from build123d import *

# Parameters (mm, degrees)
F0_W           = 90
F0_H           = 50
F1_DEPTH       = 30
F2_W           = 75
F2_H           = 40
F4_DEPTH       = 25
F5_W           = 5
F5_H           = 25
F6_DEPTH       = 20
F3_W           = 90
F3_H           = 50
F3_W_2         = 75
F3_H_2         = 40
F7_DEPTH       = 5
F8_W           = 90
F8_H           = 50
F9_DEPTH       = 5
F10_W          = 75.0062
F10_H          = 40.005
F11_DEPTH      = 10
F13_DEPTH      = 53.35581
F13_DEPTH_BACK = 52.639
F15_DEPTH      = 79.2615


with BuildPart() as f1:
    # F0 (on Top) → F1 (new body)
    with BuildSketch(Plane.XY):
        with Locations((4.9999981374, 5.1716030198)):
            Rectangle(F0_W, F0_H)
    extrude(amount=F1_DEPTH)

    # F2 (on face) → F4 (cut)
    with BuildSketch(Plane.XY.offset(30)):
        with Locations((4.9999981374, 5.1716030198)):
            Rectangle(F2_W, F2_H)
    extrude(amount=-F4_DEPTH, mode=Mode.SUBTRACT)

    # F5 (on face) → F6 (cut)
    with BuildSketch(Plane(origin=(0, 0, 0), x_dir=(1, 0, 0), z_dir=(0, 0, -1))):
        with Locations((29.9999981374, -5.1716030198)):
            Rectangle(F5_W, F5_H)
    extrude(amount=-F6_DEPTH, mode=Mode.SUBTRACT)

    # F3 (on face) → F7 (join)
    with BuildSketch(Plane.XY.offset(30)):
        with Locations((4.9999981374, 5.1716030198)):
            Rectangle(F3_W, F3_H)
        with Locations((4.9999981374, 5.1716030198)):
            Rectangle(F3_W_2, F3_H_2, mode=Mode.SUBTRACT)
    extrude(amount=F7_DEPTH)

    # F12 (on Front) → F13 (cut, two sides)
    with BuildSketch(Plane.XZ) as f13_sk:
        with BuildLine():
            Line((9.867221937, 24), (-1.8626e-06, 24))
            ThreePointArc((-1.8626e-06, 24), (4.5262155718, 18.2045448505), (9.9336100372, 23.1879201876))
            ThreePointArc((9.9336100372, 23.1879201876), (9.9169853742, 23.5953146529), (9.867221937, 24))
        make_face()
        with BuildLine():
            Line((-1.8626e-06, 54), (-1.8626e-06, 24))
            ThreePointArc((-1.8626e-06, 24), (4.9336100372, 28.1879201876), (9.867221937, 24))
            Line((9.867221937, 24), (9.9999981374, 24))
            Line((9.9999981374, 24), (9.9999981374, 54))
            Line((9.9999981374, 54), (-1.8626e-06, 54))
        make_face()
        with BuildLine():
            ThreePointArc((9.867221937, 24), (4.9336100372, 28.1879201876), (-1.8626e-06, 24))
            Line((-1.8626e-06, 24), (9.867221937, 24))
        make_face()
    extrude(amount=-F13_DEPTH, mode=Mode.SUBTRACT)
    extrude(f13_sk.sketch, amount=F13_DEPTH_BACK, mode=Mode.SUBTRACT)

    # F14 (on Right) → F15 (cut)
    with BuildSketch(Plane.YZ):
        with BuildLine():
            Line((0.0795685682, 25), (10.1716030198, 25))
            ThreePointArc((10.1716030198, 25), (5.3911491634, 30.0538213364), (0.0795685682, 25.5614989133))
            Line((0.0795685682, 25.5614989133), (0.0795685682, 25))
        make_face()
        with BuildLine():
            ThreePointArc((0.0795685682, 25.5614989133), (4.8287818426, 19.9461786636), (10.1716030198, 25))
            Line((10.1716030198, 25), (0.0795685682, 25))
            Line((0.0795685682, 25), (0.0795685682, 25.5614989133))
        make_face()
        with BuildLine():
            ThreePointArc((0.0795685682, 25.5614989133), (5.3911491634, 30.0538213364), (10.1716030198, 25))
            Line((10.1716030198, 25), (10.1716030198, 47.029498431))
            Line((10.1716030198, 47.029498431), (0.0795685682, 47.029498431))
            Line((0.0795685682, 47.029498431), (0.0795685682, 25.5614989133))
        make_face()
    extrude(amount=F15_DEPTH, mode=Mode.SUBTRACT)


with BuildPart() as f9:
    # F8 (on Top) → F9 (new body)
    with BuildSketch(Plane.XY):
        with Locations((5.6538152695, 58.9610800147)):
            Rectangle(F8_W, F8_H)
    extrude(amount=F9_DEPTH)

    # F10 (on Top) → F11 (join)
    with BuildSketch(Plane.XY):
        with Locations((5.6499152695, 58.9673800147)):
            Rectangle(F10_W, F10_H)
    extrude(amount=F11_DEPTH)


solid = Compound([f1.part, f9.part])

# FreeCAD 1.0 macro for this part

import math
import FreeCAD as App
import Part
import Sketcher
from FreeCAD import Vector
Q = App.Units.Quantity

doc = App.newDocument("Part")
body = doc.addObject("PartDesign::Body", "Body")

# Sketch on XY plane
sketch1 = body.newObject("Sketcher::SketchObject", "Sketch")
sketch1.AttachmentSupport = (doc.getObject("XY_Plane"), [""])
sketch1.MapMode = "FlatFace"
sketch1.addGeometry(Part.LineSegment(Vector(-40.000002, 30.171603, 0), Vector(-40.000002, -19.828397, 0)), False)
sketch1.addGeometry(Part.LineSegment(Vector(-40.000002, -19.828397, 0), Vector(49.999998, -19.828397, 0)), False)
sketch1.addGeometry(Part.LineSegment(Vector(49.999998, -19.828397, 0), Vector(49.999998, 30.171603, 0)), False)
sketch1.addGeometry(Part.LineSegment(Vector(49.999998, 30.171603, 0), Vector(-40.000002, 30.171603, 0)), False)
sketch1.addConstraint(Sketcher.Constraint("Coincident", 0, 2, 1, 1))
sketch1.addConstraint(Sketcher.Constraint("Coincident", 1, 2, 2, 1))
sketch1.addConstraint(Sketcher.Constraint("Coincident", 2, 2, 3, 1))
sketch1.addConstraint(Sketcher.Constraint("Coincident", 3, 2, 0, 1))
sketch1.addConstraint(Sketcher.Constraint("Vertical", 0))
sketch1.addConstraint(Sketcher.Constraint("Horizontal", 1))
sketch1.addConstraint(Sketcher.Constraint("Vertical", 2))
sketch1.addConstraint(Sketcher.Constraint("Horizontal", 3))
sketch1.addConstraint(Sketcher.Constraint("DistanceX", 1, 1, 1, 2, Q("90 mm")))
sketch1.addConstraint(Sketcher.Constraint("DistanceY", 0, 2, 0, 1, Q("50 mm")))
sketch1.addConstraint(Sketcher.Constraint("DistanceX", 0, 2, -1, 1, Q("40.000002 mm")))
sketch1.addConstraint(Sketcher.Constraint("DistanceY", 0, 2, -1, 1, Q("19.828397 mm")))
pad1 = body.newObject("PartDesign::Pad", "Pad")
pad1.Profile = sketch1
pad1.Length = 30

# Sketch on XY plane
sketch2 = body.newObject("Sketcher::SketchObject", "Sketch001")
sketch2.AttachmentSupport = (doc.getObject("XY_Plane"), [""])
sketch2.MapMode = "FlatFace"
sketch2.AttachmentOffset = App.Placement(Vector(0, 0, 30), App.Rotation())
sketch2.addGeometry(Part.LineSegment(Vector(-32.500002, 25.171603, 0), Vector(-32.500002, -14.828397, 0)), False)
sketch2.addGeometry(Part.LineSegment(Vector(-32.500002, -14.828397, 0), Vector(42.499998, -14.828397, 0)), False)
sketch2.addGeometry(Part.LineSegment(Vector(42.499998, -14.828397, 0), Vector(42.499998, 25.171603, 0)), False)
sketch2.addGeometry(Part.LineSegment(Vector(42.499998, 25.171603, 0), Vector(-32.500002, 25.171603, 0)), False)
sketch2.addConstraint(Sketcher.Constraint("Coincident", 0, 2, 1, 1))
sketch2.addConstraint(Sketcher.Constraint("Coincident", 1, 2, 2, 1))
sketch2.addConstraint(Sketcher.Constraint("Coincident", 2, 2, 3, 1))
sketch2.addConstraint(Sketcher.Constraint("Coincident", 3, 2, 0, 1))
sketch2.addConstraint(Sketcher.Constraint("Vertical", 0))
sketch2.addConstraint(Sketcher.Constraint("Horizontal", 1))
sketch2.addConstraint(Sketcher.Constraint("Vertical", 2))
sketch2.addConstraint(Sketcher.Constraint("Horizontal", 3))
sketch2.addConstraint(Sketcher.Constraint("DistanceX", 1, 1, 1, 2, Q("75 mm")))
sketch2.addConstraint(Sketcher.Constraint("DistanceY", 0, 2, 0, 1, Q("40 mm")))
sketch2.addConstraint(Sketcher.Constraint("DistanceX", 0, 2, -1, 1, Q("32.500002 mm")))
sketch2.addConstraint(Sketcher.Constraint("DistanceY", 0, 2, -1, 1, Q("14.828397 mm")))
pocket1 = body.newObject("PartDesign::Pocket", "Pocket")
pocket1.Profile = sketch2
pocket1.Length = 25

# Sketch on XY plane
sketch3 = body.newObject("Sketcher::SketchObject", "Sketch002")
sketch3.AttachmentSupport = (doc.getObject("XY_Plane"), [""])
sketch3.MapMode = "FlatFace"
sketch3.addGeometry(Part.LineSegment(Vector(27.499998, -7.328397, 0), Vector(27.499998, 17.671603, 0)), False)
sketch3.addGeometry(Part.LineSegment(Vector(27.499998, 17.671603, 0), Vector(32.499998, 17.671603, 0)), False)
sketch3.addGeometry(Part.LineSegment(Vector(32.499998, 17.671603, 0), Vector(32.499998, -7.328397, 0)), False)
sketch3.addGeometry(Part.LineSegment(Vector(32.499998, -7.328397, 0), Vector(27.499998, -7.328397, 0)), False)
sketch3.addConstraint(Sketcher.Constraint("Coincident", 0, 2, 1, 1))
sketch3.addConstraint(Sketcher.Constraint("Coincident", 1, 2, 2, 1))
sketch3.addConstraint(Sketcher.Constraint("Coincident", 2, 2, 3, 1))
sketch3.addConstraint(Sketcher.Constraint("Coincident", 3, 2, 0, 1))
sketch3.addConstraint(Sketcher.Constraint("Vertical", 0))
sketch3.addConstraint(Sketcher.Constraint("Horizontal", 1))
sketch3.addConstraint(Sketcher.Constraint("Vertical", 2))
sketch3.addConstraint(Sketcher.Constraint("Horizontal", 3))
sketch3.addConstraint(Sketcher.Constraint("DistanceX", 1, 1, 1, 2, Q("5 mm")))
sketch3.addConstraint(Sketcher.Constraint("DistanceY", 0, 1, 0, 2, Q("25 mm")))
sketch3.addConstraint(Sketcher.Constraint("DistanceX", -1, 1, 0, 2, Q("27.499998 mm")))
sketch3.addConstraint(Sketcher.Constraint("DistanceY", -1, 1, 0, 2, Q("17.671603 mm")))
pocket2 = body.newObject("PartDesign::Pocket", "Pocket001")
pocket2.Profile = sketch3
pocket2.Length = 20
pocket2.Reversed = True

# Sketch on XY plane
sketch4 = body.newObject("Sketcher::SketchObject", "Sketch003")
sketch4.AttachmentSupport = (doc.getObject("XY_Plane"), [""])
sketch4.MapMode = "FlatFace"
sketch4.AttachmentOffset = App.Placement(Vector(0, 0, 30), App.Rotation())
sketch4.addGeometry(Part.LineSegment(Vector(-40.000002, 30.171603, 0), Vector(-40.000002, -19.828397, 0)), False)
sketch4.addGeometry(Part.LineSegment(Vector(-40.000002, -19.828397, 0), Vector(49.999998, -19.828397, 0)), False)
sketch4.addGeometry(Part.LineSegment(Vector(49.999998, -19.828397, 0), Vector(49.999998, 30.171603, 0)), False)
sketch4.addGeometry(Part.LineSegment(Vector(49.999998, 30.171603, 0), Vector(-40.000002, 30.171603, 0)), False)
sketch4.addGeometry(Part.LineSegment(Vector(42.499998, -14.828397, 0), Vector(-32.500002, -14.828397, 0)), False)
sketch4.addGeometry(Part.LineSegment(Vector(-32.500002, -14.828397, 0), Vector(-32.500002, 25.171603, 0)), False)
sketch4.addGeometry(Part.LineSegment(Vector(-32.500002, 25.171603, 0), Vector(42.499998, 25.171603, 0)), False)
sketch4.addGeometry(Part.LineSegment(Vector(42.499998, 25.171603, 0), Vector(42.499998, -14.828397, 0)), False)
sketch4.addConstraint(Sketcher.Constraint("Coincident", 0, 2, 1, 1))
sketch4.addConstraint(Sketcher.Constraint("Coincident", 1, 2, 2, 1))
sketch4.addConstraint(Sketcher.Constraint("Coincident", 2, 2, 3, 1))
sketch4.addConstraint(Sketcher.Constraint("Coincident", 3, 2, 0, 1))
sketch4.addConstraint(Sketcher.Constraint("Coincident", 4, 2, 5, 1))
sketch4.addConstraint(Sketcher.Constraint("Coincident", 5, 2, 6, 1))
sketch4.addConstraint(Sketcher.Constraint("Coincident", 6, 2, 7, 1))
sketch4.addConstraint(Sketcher.Constraint("Coincident", 7, 2, 4, 1))
sketch4.addConstraint(Sketcher.Constraint("Vertical", 0))
sketch4.addConstraint(Sketcher.Constraint("Horizontal", 1))
sketch4.addConstraint(Sketcher.Constraint("Vertical", 2))
sketch4.addConstraint(Sketcher.Constraint("Horizontal", 3))
sketch4.addConstraint(Sketcher.Constraint("Horizontal", 4))
sketch4.addConstraint(Sketcher.Constraint("Vertical", 5))
sketch4.addConstraint(Sketcher.Constraint("Horizontal", 6))
sketch4.addConstraint(Sketcher.Constraint("Vertical", 7))
sketch4.addConstraint(Sketcher.Constraint("DistanceX", 1, 1, 1, 2, Q("90 mm")))
sketch4.addConstraint(Sketcher.Constraint("DistanceX", 4, 2, 4, 1, Q("75 mm")))
sketch4.addConstraint(Sketcher.Constraint("DistanceY", 0, 2, 0, 1, Q("50 mm")))
sketch4.addConstraint(Sketcher.Constraint("DistanceY", 5, 1, 5, 2, Q("40 mm")))
sketch4.addConstraint(Sketcher.Constraint("DistanceX", 0, 2, -1, 1, Q("40.000002 mm")))
sketch4.addConstraint(Sketcher.Constraint("DistanceY", 0, 2, 4, 2, Q("5 mm")))
sketch4.addConstraint(Sketcher.Constraint("DistanceX", 4, 2, -1, 1, Q("32.500002 mm")))
sketch4.addConstraint(Sketcher.Constraint("DistanceY", 0, 2, -1, 1, Q("19.828397 mm")))
pad2 = body.newObject("PartDesign::Pad", "Pad001")
pad2.Profile = sketch4
pad2.Length = 5

# Sketch on XZ plane
sketch5 = body.newObject("Sketcher::SketchObject", "Sketch004")
sketch5.AttachmentSupport = (doc.getObject("XZ_Plane"), [""])
sketch5.MapMode = "FlatFace"
sketch5.addGeometry(Part.ArcOfCircle(Part.Circle(Vector(4.93361, 23.18792, 0), Vector(0, 0, 1), 5), math.radians(170.652845), math.radians(360)), False)
sketch5.addGeometry(Part.ArcOfCircle(Part.Circle(Vector(4.93361, 23.18792, 0), Vector(0, 0, 1), 5), math.radians(0), math.radians(9.347155)), False)
sketch5.addGeometry(Part.LineSegment(Vector(9.867222, 24, 0), Vector(9.999998, 24, 0)), False)
sketch5.addGeometry(Part.LineSegment(Vector(9.999998, 24, 0), Vector(9.999998, 54, 0)), False)
sketch5.addGeometry(Part.LineSegment(Vector(9.999998, 54, 0), Vector(-0.000002, 54, 0)), False)
sketch5.addGeometry(Part.LineSegment(Vector(-0.000002, 54, 0), Vector(-0.000002, 24, 0)), False)
sketch5.addConstraint(Sketcher.Constraint("Tangent", 0, 2, 1, 1))
sketch5.addConstraint(Sketcher.Constraint("Coincident", 1, 2, 2, 1))
sketch5.addConstraint(Sketcher.Constraint("Coincident", 2, 2, 3, 1))
sketch5.addConstraint(Sketcher.Constraint("Coincident", 3, 2, 4, 1))
sketch5.addConstraint(Sketcher.Constraint("Coincident", 4, 2, 5, 1))
sketch5.addConstraint(Sketcher.Constraint("Coincident", 5, 2, 0, 1))
sketch5.addConstraint(Sketcher.Constraint("Horizontal", 2))
sketch5.addConstraint(Sketcher.Constraint("Vertical", 3))
sketch5.addConstraint(Sketcher.Constraint("Horizontal", 4))
sketch5.addConstraint(Sketcher.Constraint("Vertical", 5))
sketch5.addConstraint(Sketcher.Constraint("Equal", 0, 1))
sketch5.addConstraint(Sketcher.Constraint("PointOnObject", 4, 2, -2))
sketch5.addConstraint(Sketcher.Constraint("Horizontal", 1, 3, 0, 2))
sketch5.addConstraint(Sketcher.Constraint("Horizontal", 2, 2, 5, 2))
sketch5.addConstraint(Sketcher.Constraint("Radius", 0, Q("5 mm")))
sketch5.addConstraint(Sketcher.Constraint("DistanceX", 4, 2, 4, 1, Q("10 mm")))
sketch5.addConstraint(Sketcher.Constraint("DistanceY", 3, 1, 3, 2, Q("30 mm")))
sketch5.addConstraint(Sketcher.Constraint("DistanceY", -1, 1, 1, 2, Q("24 mm")))
sketch5.addConstraint(Sketcher.Constraint("DistanceX", 2, 1, 2, 2, Q("0.132776 mm")))
pocket3 = body.newObject("PartDesign::Pocket", "Pocket002")
pocket3.Profile = sketch5
pocket3.Type = "ThroughAll"
pocket3.Midplane = True

# Sketch on YZ plane
sketch6 = body.newObject("Sketcher::SketchObject", "Sketch005")
sketch6.AttachmentSupport = (doc.getObject("YZ_Plane"), [""])
sketch6.MapMode = "FlatFace"
sketch6.addGeometry(Part.ArcOfCircle(Part.Circle(Vector(5.109966, 25, 0), Vector(0, 0, 1), 5.061638), math.radians(173.630941), math.radians(360)), False)
sketch6.addGeometry(Part.LineSegment(Vector(10.171603, 25, 0), Vector(10.171603, 47.029498, 0)), False)
sketch6.addGeometry(Part.LineSegment(Vector(10.171603, 47.029498, 0), Vector(0.079569, 47.029498, 0)), False)
sketch6.addGeometry(Part.LineSegment(Vector(0.079569, 47.029498, 0), Vector(0.079569, 25.561499, 0)), False)
sketch6.addConstraint(Sketcher.Constraint("Tangent", 0, 2, 1, 1))
sketch6.addConstraint(Sketcher.Constraint("Coincident", 1, 2, 2, 1))
sketch6.addConstraint(Sketcher.Constraint("Coincident", 2, 2, 3, 1))
sketch6.addConstraint(Sketcher.Constraint("Coincident", 3, 2, 0, 1))
sketch6.addConstraint(Sketcher.Constraint("Vertical", 1))
sketch6.addConstraint(Sketcher.Constraint("Horizontal", 2))
sketch6.addConstraint(Sketcher.Constraint("Vertical", 3))
sketch6.addConstraint(Sketcher.Constraint("DistanceY", -1, 1, 0, 3, Q("25 mm")))
sketch6.addConstraint(Sketcher.Constraint("DistanceY", 3, 2, 3, 1, Q("21.468 mm")))
sketch6.addConstraint(Sketcher.Constraint("DistanceY", 1, 1, 1, 2, Q("22.029498 mm")))
sketch6.addConstraint(Sketcher.Constraint("Radius", 0, Q("5.061638 mm")))
sketch6.addConstraint(Sketcher.Constraint("DistanceX", -1, 1, 2, 2, Q("0.079569 mm")))
pocket4 = body.newObject("PartDesign::Pocket", "Pocket003")
pocket4.Profile = sketch6
pocket4.Length = 79.2615
pocket4.Reversed = True
body2 = doc.addObject("PartDesign::Body", "Body001")

# Sketch on XY plane
sketch7 = body2.newObject("Sketcher::SketchObject", "Sketch006")
sketch7.AttachmentSupport = (doc.getObject("XY_Plane001"), [""])
sketch7.MapMode = "FlatFace"
sketch7.addGeometry(Part.LineSegment(Vector(-39.346185, 83.96108, 0), Vector(-39.346185, 33.96108, 0)), False)
sketch7.addGeometry(Part.LineSegment(Vector(-39.346185, 33.96108, 0), Vector(50.653815, 33.96108, 0)), False)
sketch7.addGeometry(Part.LineSegment(Vector(50.653815, 33.96108, 0), Vector(50.653815, 83.96108, 0)), False)
sketch7.addGeometry(Part.LineSegment(Vector(50.653815, 83.96108, 0), Vector(-39.346185, 83.96108, 0)), False)
sketch7.addConstraint(Sketcher.Constraint("Coincident", 0, 2, 1, 1))
sketch7.addConstraint(Sketcher.Constraint("Coincident", 1, 2, 2, 1))
sketch7.addConstraint(Sketcher.Constraint("Coincident", 2, 2, 3, 1))
sketch7.addConstraint(Sketcher.Constraint("Coincident", 3, 2, 0, 1))
sketch7.addConstraint(Sketcher.Constraint("Vertical", 0))
sketch7.addConstraint(Sketcher.Constraint("Horizontal", 1))
sketch7.addConstraint(Sketcher.Constraint("Vertical", 2))
sketch7.addConstraint(Sketcher.Constraint("Horizontal", 3))
sketch7.addConstraint(Sketcher.Constraint("DistanceX", 1, 1, 1, 2, Q("90 mm")))
sketch7.addConstraint(Sketcher.Constraint("DistanceY", 0, 2, 0, 1, Q("50 mm")))
sketch7.addConstraint(Sketcher.Constraint("DistanceY", -1, 1, 0, 2, Q("33.96108 mm")))
sketch7.addConstraint(Sketcher.Constraint("DistanceX", 0, 2, -1, 1, Q("39.346185 mm")))
pad3 = body2.newObject("PartDesign::Pad", "Pad002")
pad3.Profile = sketch7
pad3.Length = 5

# Sketch on XY plane
sketch8 = body2.newObject("Sketcher::SketchObject", "Sketch007")
sketch8.AttachmentSupport = (doc.getObject("XY_Plane001"), [""])
sketch8.MapMode = "FlatFace"
sketch8.addGeometry(Part.LineSegment(Vector(-31.853185, 78.96988, 0), Vector(-31.853185, 38.96488, 0)), False)
sketch8.addGeometry(Part.LineSegment(Vector(-31.853185, 38.96488, 0), Vector(43.153015, 38.96488, 0)), False)
sketch8.addGeometry(Part.LineSegment(Vector(43.153015, 38.96488, 0), Vector(43.153015, 78.96988, 0)), False)
sketch8.addGeometry(Part.LineSegment(Vector(43.153015, 78.96988, 0), Vector(-31.853185, 78.96988, 0)), False)
sketch8.addConstraint(Sketcher.Constraint("Coincident", 0, 2, 1, 1))
sketch8.addConstraint(Sketcher.Constraint("Coincident", 1, 2, 2, 1))
sketch8.addConstraint(Sketcher.Constraint("Coincident", 2, 2, 3, 1))
sketch8.addConstraint(Sketcher.Constraint("Coincident", 3, 2, 0, 1))
sketch8.addConstraint(Sketcher.Constraint("Vertical", 0))
sketch8.addConstraint(Sketcher.Constraint("Horizontal", 1))
sketch8.addConstraint(Sketcher.Constraint("Vertical", 2))
sketch8.addConstraint(Sketcher.Constraint("Horizontal", 3))
sketch8.addConstraint(Sketcher.Constraint("DistanceY", 0, 2, 0, 1, Q("40.005 mm")))
sketch8.addConstraint(Sketcher.Constraint("DistanceX", 1, 1, 1, 2, Q("75.0062 mm")))
sketch8.addConstraint(Sketcher.Constraint("DistanceY", -1, 1, 0, 2, Q("38.96488 mm")))
sketch8.addConstraint(Sketcher.Constraint("DistanceX", 0, 2, -1, 1, Q("31.853185 mm")))
pad4 = body2.newObject("PartDesign::Pad", "Pad003")
pad4.Profile = sketch8
pad4.Length = 10

doc.recompute()
